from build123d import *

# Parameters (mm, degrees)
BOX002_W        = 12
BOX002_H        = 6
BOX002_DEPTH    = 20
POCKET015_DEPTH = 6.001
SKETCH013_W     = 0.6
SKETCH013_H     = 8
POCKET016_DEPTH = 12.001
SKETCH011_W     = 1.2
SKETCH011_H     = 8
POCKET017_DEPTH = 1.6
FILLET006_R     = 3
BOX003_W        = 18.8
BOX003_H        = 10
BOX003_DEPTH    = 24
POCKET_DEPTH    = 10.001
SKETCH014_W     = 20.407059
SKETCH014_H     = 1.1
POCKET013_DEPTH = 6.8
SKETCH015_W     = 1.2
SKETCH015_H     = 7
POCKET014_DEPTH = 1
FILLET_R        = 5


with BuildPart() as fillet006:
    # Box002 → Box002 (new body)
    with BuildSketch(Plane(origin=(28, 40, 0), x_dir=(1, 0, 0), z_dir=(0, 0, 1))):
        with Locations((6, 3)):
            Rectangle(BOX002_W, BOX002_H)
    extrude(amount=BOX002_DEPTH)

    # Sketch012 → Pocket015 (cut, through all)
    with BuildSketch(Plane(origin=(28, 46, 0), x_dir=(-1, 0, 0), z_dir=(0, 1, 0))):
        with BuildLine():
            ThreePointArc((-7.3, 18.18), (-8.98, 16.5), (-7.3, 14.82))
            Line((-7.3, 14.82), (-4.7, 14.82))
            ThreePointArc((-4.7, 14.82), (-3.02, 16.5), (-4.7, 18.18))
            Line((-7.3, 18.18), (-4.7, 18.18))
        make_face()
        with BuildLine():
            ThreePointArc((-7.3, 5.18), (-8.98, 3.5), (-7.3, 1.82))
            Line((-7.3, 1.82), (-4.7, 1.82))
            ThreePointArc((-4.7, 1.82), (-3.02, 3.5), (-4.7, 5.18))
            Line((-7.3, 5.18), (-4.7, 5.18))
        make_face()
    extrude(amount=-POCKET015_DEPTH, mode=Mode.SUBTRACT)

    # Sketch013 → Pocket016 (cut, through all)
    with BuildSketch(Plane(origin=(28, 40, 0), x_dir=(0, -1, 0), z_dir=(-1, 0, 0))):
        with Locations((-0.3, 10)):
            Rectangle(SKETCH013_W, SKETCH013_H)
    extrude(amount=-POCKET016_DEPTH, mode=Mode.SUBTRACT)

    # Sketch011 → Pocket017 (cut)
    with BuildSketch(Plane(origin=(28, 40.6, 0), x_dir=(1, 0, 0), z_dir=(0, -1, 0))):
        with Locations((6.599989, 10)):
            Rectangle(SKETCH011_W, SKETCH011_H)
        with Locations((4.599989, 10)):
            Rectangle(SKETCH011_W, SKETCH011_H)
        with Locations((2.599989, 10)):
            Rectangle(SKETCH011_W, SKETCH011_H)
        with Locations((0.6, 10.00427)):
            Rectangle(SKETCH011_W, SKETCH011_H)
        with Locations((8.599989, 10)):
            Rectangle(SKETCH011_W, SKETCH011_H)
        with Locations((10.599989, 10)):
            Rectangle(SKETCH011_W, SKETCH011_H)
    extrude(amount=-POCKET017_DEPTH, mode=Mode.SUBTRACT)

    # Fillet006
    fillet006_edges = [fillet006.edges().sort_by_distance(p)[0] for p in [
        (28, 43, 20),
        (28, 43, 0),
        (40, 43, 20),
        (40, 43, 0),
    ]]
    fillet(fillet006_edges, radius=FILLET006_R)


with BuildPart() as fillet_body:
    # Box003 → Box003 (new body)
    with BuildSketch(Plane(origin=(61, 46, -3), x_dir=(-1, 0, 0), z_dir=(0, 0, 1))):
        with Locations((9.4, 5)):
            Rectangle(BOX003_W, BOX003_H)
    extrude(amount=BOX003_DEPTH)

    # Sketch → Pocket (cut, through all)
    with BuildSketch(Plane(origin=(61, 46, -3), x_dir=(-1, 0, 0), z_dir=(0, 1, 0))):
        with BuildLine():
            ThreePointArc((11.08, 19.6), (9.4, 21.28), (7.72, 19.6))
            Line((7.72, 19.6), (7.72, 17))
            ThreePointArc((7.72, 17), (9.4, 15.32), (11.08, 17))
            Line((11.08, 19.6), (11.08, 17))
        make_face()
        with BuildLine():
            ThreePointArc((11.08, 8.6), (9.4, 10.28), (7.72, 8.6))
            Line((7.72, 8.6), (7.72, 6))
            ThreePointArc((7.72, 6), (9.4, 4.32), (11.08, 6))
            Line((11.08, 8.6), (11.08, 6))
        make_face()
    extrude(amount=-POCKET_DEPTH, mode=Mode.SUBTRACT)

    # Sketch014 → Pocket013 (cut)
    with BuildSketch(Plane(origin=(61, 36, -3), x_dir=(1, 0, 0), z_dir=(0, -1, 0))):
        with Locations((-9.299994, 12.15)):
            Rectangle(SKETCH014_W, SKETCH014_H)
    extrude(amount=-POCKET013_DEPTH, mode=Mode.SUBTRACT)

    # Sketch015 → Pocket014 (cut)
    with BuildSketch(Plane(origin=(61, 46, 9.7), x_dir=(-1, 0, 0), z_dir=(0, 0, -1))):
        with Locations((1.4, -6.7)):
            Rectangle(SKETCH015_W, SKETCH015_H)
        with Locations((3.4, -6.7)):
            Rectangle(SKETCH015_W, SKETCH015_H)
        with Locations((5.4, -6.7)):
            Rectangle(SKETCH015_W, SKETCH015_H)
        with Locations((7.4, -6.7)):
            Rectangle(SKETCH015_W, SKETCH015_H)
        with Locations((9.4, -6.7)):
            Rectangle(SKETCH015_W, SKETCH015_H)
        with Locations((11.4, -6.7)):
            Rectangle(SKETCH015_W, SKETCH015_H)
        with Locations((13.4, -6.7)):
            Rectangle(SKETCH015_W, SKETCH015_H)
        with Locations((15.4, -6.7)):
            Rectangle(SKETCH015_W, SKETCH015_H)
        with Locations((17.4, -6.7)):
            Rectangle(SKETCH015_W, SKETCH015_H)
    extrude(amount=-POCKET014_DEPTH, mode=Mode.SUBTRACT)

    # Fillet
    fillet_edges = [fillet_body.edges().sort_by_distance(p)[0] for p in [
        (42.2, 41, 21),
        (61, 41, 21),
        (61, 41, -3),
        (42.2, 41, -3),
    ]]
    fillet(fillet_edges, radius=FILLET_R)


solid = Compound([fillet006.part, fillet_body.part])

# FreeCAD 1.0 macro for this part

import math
import FreeCAD as App
import Part
import Sketcher
from FreeCAD import Vector


def edges_at(feature, points):
    """Names of the edges that pass closest to the given points."""
    edges = feature.Shape.Edges
    near = lambda p: min(range(len(edges)), key=lambda i: edges[i].distToShape(Part.Vertex(*p))[0])
    return sorted({f"Edge{near(p) + 1}" for p in points})


def add_polygon(sketch, points):
    """Adds a closed chain of lines whose ends are joined by coincident constraints."""
    first, n = sketch.GeometryCount, len(points)
    for a, b in zip(points, points[1:] + points[:1]):
        sketch.addGeometry(Part.LineSegment(App.Vector(*a, 0), App.Vector(*b, 0)), False)
    for i in range(n):
        sketch.addConstraint(Sketcher.Constraint("Coincident", first + i, 2, first + (i + 1) % n, 1))

doc = App.newDocument("Part")
params = doc.addObject("Spreadsheet::Sheet", "Params")
for row, (alias, value) in enumerate([
    ("sketch1_width", "12 mm"),
    ("sketch1_height", "6 mm"),
    ("pad1_length", "20 mm"),
    ("sketch2_radius", "1.68 mm"),
    ("sketch2_width", "2.6 mm"),
    ("sketch3_height", "8 mm"),
    ("sketch3_width", "0.6 mm"),
    ("sketch4_height", "8 mm"),
    ("sketch4_width", "1.2 mm"),
    ("pocket3_length", "1.6 mm"),
    ("fillet_radius", "3 mm"),
    ("sketch5_height", "10 mm"),
    ("sketch5_width", "18.8 mm"),
    ("pad2_length", "24 mm"),
    ("sketch6_radius", "1.68 mm"),
    ("sketch6_height", "2.6 mm"),
    ("sketch7_height", "1.1 mm"),
    ("pocket5_length", "6.8 mm"),
    ("sketch8_height", "7 mm"),
    ("sketch8_width", "1.2 mm"),
    ("pocket6_length", "1 mm"),
    ("fillet2_radius", "5 mm"),
], start=1):
    params.set(f"A{row}", alias)
    params.set(f"B{row}", "=" + value)
    params.setAlias(f"B{row}", alias)

body = doc.addObject("PartDesign::Body", "Body")

# Sketch on XY plane
sketch1 = doc.addObject("Sketcher::SketchObject", "Sketch")
body.addObject(sketch1)
sketch1.AttachmentSupport = (doc.XY_Plane, [""])
sketch1.MapMode = "FlatFace"
add_polygon(sketch1, [(28, 46), (28, 40), (40, 40), (40, 46)])  # lines 0-3
sketch1.addConstraint([
    Sketcher.Constraint("Vertical", 0),
    Sketcher.Constraint("Horizontal", 1),
    Sketcher.Constraint("Vertical", 2),
    Sketcher.Constraint("Horizontal", 3),
    Sketcher.Constraint("DistanceX", 1, 1, 1, 2, 12.0),
    Sketcher.Constraint("DistanceY", 0, 2, 0, 1, 6.0),
    Sketcher.Constraint("DistanceX", -1, 1, 0, 2, 28.0),
    Sketcher.Constraint("DistanceY", -1, 1, 0, 2, 40.0),
])
sketch1.setExpression("Constraints[8]", "Params.sketch1_width")
sketch1.setExpression("Constraints[9]", "Params.sketch1_height")
pad1 = doc.addObject("PartDesign::Pad", "Pad")
body.addObject(pad1)
pad1.Profile = sketch1
pad1.setExpression("Length", "Params.pad1_length")

# Sketch on XZ plane
sketch2 = doc.addObject("Sketcher::SketchObject", "Sketch001")
body.addObject(sketch2)
sketch2.AttachmentSupport = (doc.XZ_Plane, [""])
sketch2.MapMode = "FlatFace"
sketch2.AttachmentOffset = App.Placement(Vector(0, 0, -46), App.Rotation())
sketch2.addGeometry([
    Part.ArcOfCircle(Part.Circle(Vector(35.3, 16.5, 0), Vector(0, 0, 1), 1.7), math.radians(-90), math.radians(90)),  # 0
    Part.LineSegment(Vector(35.3, 14.8, 0), Vector(32.7, 14.8, 0)),  # 1
    Part.ArcOfCircle(Part.Circle(Vector(32.7, 16.5, 0), Vector(0, 0, 1), 1.7), math.radians(90), math.radians(270)),  # 2
    Part.LineSegment(Vector(32.7, 18.2, 0), Vector(35.3, 18.2, 0)),  # 3
    Part.ArcOfCircle(Part.Circle(Vector(35.3, 3.5, 0), Vector(0, 0, 1), 1.7), math.radians(-90), math.radians(90)),  # 4
    Part.LineSegment(Vector(35.3, 1.8, 0), Vector(32.7, 1.8, 0)),  # 5
    Part.ArcOfCircle(Part.Circle(Vector(32.7, 3.5, 0), Vector(0, 0, 1), 1.7), math.radians(90), math.radians(270)),  # 6
    Part.LineSegment(Vector(32.7, 5.2, 0), Vector(35.3, 5.2, 0)),  # 7
], False)
sketch2.addConstraint([
    Sketcher.Constraint("Tangent", 0, 1, 1, 1),
    Sketcher.Constraint("Tangent", 1, 2, 2, 2),
    Sketcher.Constraint("Tangent", 2, 1, 3, 1),
    Sketcher.Constraint("Tangent", 3, 2, 0, 2),
    Sketcher.Constraint("Tangent", 4, 1, 5, 1),
    Sketcher.Constraint("Tangent", 5, 2, 6, 2),
    Sketcher.Constraint("Tangent", 6, 1, 7, 1),
    Sketcher.Constraint("Tangent", 7, 2, 4, 2),
    Sketcher.Constraint("Horizontal", 1),
    Sketcher.Constraint("Horizontal", 3),
    Sketcher.Constraint("Horizontal", 5),
    Sketcher.Constraint("Horizontal", 7),
    Sketcher.Constraint("Equal", 2, 4),
    Sketcher.Constraint("Vertical", 0, 3, 4, 3),
    Sketcher.Constraint("Vertical", 2, 3, 6, 3),
    Sketcher.Constraint("Radius", 0, 1.68),
    Sketcher.Constraint("DistanceX", 1, 2, 1, 1, 2.6),
    Sketcher.Constraint("DistanceY", 4, 3, 0, 3, 13.0),
    Sketcher.Constraint("DistanceX", -1, 1, 0, 3, 35.3),
    Sketcher.Constraint("DistanceY", -1, 1, 0, 3, 16.5),
])
sketch2.setExpression("Constraints[15]", "Params.sketch2_radius")
sketch2.setExpression("Constraints[16]", "Params.sketch2_width")
pocket1 = doc.addObject("PartDesign::Pocket", "Pocket")
body.addObject(pocket1)
pocket1.Profile = sketch2
pocket1.Type = "ThroughAll"
pocket1.Reversed = True

# Sketch on YZ plane
sketch3 = doc.addObject("Sketcher::SketchObject", "Sketch002")
body.addObject(sketch3)
sketch3.AttachmentSupport = (doc.YZ_Plane, [""])
sketch3.MapMode = "FlatFace"
sketch3.AttachmentOffset = App.Placement(Vector(0, 0, 28), App.Rotation())
add_polygon(sketch3, [(40.6, 14), (40.6, 6), (40, 6), (40, 14)])  # lines 0-3
sketch3.addConstraint([
    Sketcher.Constraint("Vertical", 0),
    Sketcher.Constraint("Horizontal", 1),
    Sketcher.Constraint("Vertical", 2),
    Sketcher.Constraint("Horizontal", 3),
    Sketcher.Constraint("DistanceY", 0, 2, 0, 1, 8.0),
    Sketcher.Constraint("DistanceX", 1, 2, 1, 1, 0.6),
    Sketcher.Constraint("DistanceY", -1, 1, 0, 2, 6.0),
    Sketcher.Constraint("DistanceX", -1, 1, 1, 2, 40.0),
])
sketch3.setExpression("Constraints[8]", "Params.sketch3_height")
sketch3.setExpression("Constraints[9]", "Params.sketch3_width")
pocket2 = doc.addObject("PartDesign::Pocket", "Pocket001")
body.addObject(pocket2)
pocket2.Profile = sketch3
pocket2.Type = "ThroughAll"
pocket2.Reversed = True

# Sketch on XZ plane
sketch4 = doc.addObject("Sketcher::SketchObject", "Sketch003")
body.addObject(sketch4)
sketch4.AttachmentSupport = (doc.XZ_Plane, [""])
sketch4.MapMode = "FlatFace"
sketch4.AttachmentOffset = App.Placement(Vector(0, 0, -40.6), App.Rotation())
add_polygon(sketch4, [(34, 14), (34, 6), (35.2, 6), (35.2, 14)])  # lines 0-3
add_polygon(sketch4, [(32, 14), (32, 6), (33.2, 6), (33.2, 14)])  # lines 4-7
add_polygon(sketch4, [(30, 14), (30, 6), (31.2, 6), (31.2, 14)])  # lines 8-11
add_polygon(sketch4, [(28, 14), (28, 6), (29.2, 6), (29.2, 14)])  # lines 12-15
add_polygon(sketch4, [(36, 14), (36, 6), (37.2, 6), (37.2, 14)])  # lines 16-19
add_polygon(sketch4, [(38, 14), (38, 6), (39.2, 6), (39.2, 14)])  # lines 20-23
sketch4.addConstraint([
    Sketcher.Constraint("Vertical", 0),
    Sketcher.Constraint("Horizontal", 1),
    Sketcher.Constraint("Vertical", 2),
    Sketcher.Constraint("Horizontal", 3),
    Sketcher.Constraint("Vertical", 4),
    Sketcher.Constraint("Horizontal", 5),
    Sketcher.Constraint("Vertical", 6),
    Sketcher.Constraint("Horizontal", 7),
    Sketcher.Constraint("Vertical", 8),
    Sketcher.Constraint("Horizontal", 9),
    Sketcher.Constraint("Vertical", 10),
    Sketcher.Constraint("Horizontal", 11),
    Sketcher.Constraint("Vertical", 12),
    Sketcher.Constraint("Horizontal", 13),
    Sketcher.Constraint("Vertical", 14),
    Sketcher.Constraint("Horizontal", 15),
    Sketcher.Constraint("Vertical", 16),
    Sketcher.Constraint("Horizontal", 17),
    Sketcher.Constraint("Vertical", 18),
    Sketcher.Constraint("Horizontal", 19),
    Sketcher.Constraint("Vertical", 20),
    Sketcher.Constraint("Horizontal", 21),
    Sketcher.Constraint("Vertical", 22),
    Sketcher.Constraint("Horizontal", 23),
    Sketcher.Constraint("Horizontal", 1, 2, 4, 2),
    Sketcher.Constraint("Horizontal", 3, 2, 6, 2),
    Sketcher.Constraint("Horizontal", 5, 2, 8, 2),
    Sketcher.Constraint("Horizontal", 7, 2, 10, 2),
    Sketcher.Constraint("Horizontal", 9, 2, 16, 2),
    Sketcher.Constraint("Horizontal", 11, 2, 18, 2),
    Sketcher.Constraint("Horizontal", 17, 2, 20, 2),
    Sketcher.Constraint("Horizontal", 19, 2, 22, 2),
    Sketcher.Constraint("Equal", 3, 5),
    Sketcher.Constraint("Equal", 7, 9),
    Sketcher.Constraint("Equal", 11, 13),
    Sketcher.Constraint("Equal", 15, 17),
    Sketcher.Constraint("Equal", 19, 21),
    Sketcher.Constraint("Equal", 10, 12),
    Sketcher.Constraint("DistanceY", 0, 2, 0, 1, 8.0),
    Sketcher.Constraint("DistanceX", 1, 1, 1, 2, 1.2),
    Sketcher.Constraint("DistanceY", -1, 1, 0, 2, 6.0),
    Sketcher.Constraint("DistanceX", -1, 1, 12, 2, 28.0),
    Sketcher.Constraint("DistanceX", 4, 2, 0, 2, 2.0),
    Sketcher.Constraint("DistanceX", 8, 2, 4, 2, 2.0),
    Sketcher.Constraint("DistanceX", 0, 2, 16, 2, 2.0),
    Sketcher.Constraint("DistanceX", 16, 2, 20, 2, 2.0),
    Sketcher.Constraint("DistanceX", -1, 1, 0, 2, 33.999989),
    Sketcher.Constraint("DistanceY", -1, 1, 12, 2, 6.00427),
])
sketch4.setExpression("Constraints[62]", "Params.sketch4_height")
sketch4.setExpression("Constraints[63]", "Params.sketch4_width")
pocket3 = doc.addObject("PartDesign::Pocket", "Pocket002")
body.addObject(pocket3)
pocket3.Profile = sketch4
pocket3.setExpression("Length", "Params.pocket3_length")
doc.recompute()

fillet = doc.addObject("PartDesign::Fillet", "Fillet")
body.addObject(fillet)
fillet.Base = (pocket3, edges_at(pocket3, [
    (28, 43, 20),
    (28, 43, 0),
    (40, 43, 20),
    (40, 43, 0),
]))
fillet.setExpression("Radius", "Params.fillet_radius")
body2 = doc.addObject("PartDesign::Body", "Body001")

# Sketch on XY plane
sketch5 = doc.addObject("Sketcher::SketchObject", "Sketch004")
body2.addObject(sketch5)
sketch5.AttachmentSupport = (doc.getObject("XY_Plane001"), [""])
sketch5.MapMode = "FlatFace"
sketch5.AttachmentOffset = App.Placement(Vector(0, 0, -3), App.Rotation())
add_polygon(sketch5, [(61, 36), (61, 46), (42, 46), (42, 36)])  # lines 0-3
sketch5.addConstraint([
    Sketcher.Constraint("Vertical", 0),
    Sketcher.Constraint("Horizontal", 1),
    Sketcher.Constraint("Vertical", 2),
    Sketcher.Constraint("Horizontal", 3),
    Sketcher.Constraint("DistanceY", 0, 1, 0, 2, 10.0),
    Sketcher.Constraint("DistanceX", 1, 2, 1, 1, 18.8),
    Sketcher.Constraint("DistanceX", -1, 1, 0, 2, 61.0),
    Sketcher.Constraint("DistanceY", -1, 1, 0, 2, 46.0),
])
sketch5.setExpression("Constraints[8]", "Params.sketch5_height")
sketch5.setExpression("Constraints[9]", "Params.sketch5_width")
pad2 = doc.addObject("PartDesign::Pad", "Pad001")
body2.addObject(pad2)
pad2.Profile = sketch5
pad2.setExpression("Length", "Params.pad2_length")

# Sketch on XZ plane
sketch6 = doc.addObject("Sketcher::SketchObject", "Sketch005")
body2.addObject(sketch6)
sketch6.AttachmentSupport = (doc.getObject("XZ_Plane001"), [""])
sketch6.MapMode = "FlatFace"
sketch6.AttachmentOffset = App.Placement(Vector(0, 0, -46), App.Rotation())
sketch6.addGeometry([
    Part.ArcOfCircle(Part.Circle(Vector(51.6, 16.6, 0), Vector(0, 0, 1), 1.7), math.radians(0), math.radians(180)),  # 0
    Part.LineSegment(Vector(53.3, 16.6, 0), Vector(53.3, 14, 0)),  # 1
    Part.ArcOfCircle(Part.Circle(Vector(51.6, 14, 0), Vector(0, 0, 1), 1.7), math.radians(180), math.radians(360)),  # 2
    Part.LineSegment(Vector(49.9, 14, 0), Vector(49.9, 16.6, 0)),  # 3
    Part.ArcOfCircle(Part.Circle(Vector(51.6, 5.6, 0), Vector(0, 0, 1), 1.7), math.radians(0), math.radians(180)),  # 4
    Part.LineSegment(Vector(53.3, 5.6, 0), Vector(53.3, 3, 0)),  # 5
    Part.ArcOfCircle(Part.Circle(Vector(51.6, 3, 0), Vector(0, 0, 1), 1.7), math.radians(180), math.radians(360)),  # 6
    Part.LineSegment(Vector(49.9, 3, 0), Vector(49.9, 5.6, 0)),  # 7
], False)
sketch6.addConstraint([
    Sketcher.Constraint("Tangent", 0, 1, 1, 1),
    Sketcher.Constraint("Tangent", 1, 2, 2, 2),
    Sketcher.Constraint("Tangent", 2, 1, 3, 1),
    Sketcher.Constraint("Tangent", 3, 2, 0, 2),
    Sketcher.Constraint("Tangent", 4, 1, 5, 1),
    Sketcher.Constraint("Tangent", 5, 2, 6, 2),
    Sketcher.Constraint("Tangent", 6, 1, 7, 1),
    Sketcher.Constraint("Tangent", 7, 2, 4, 2),
    Sketcher.Constraint("Vertical", 1),
    Sketcher.Constraint("Vertical", 3),
    Sketcher.Constraint("Vertical", 5),
    Sketcher.Constraint("Vertical", 7),
    Sketcher.Constraint("Equal", 2, 4),
    Sketcher.Constraint("Vertical", 2, 3, 4, 3),
    Sketcher.Constraint("Equal", 3, 5),
    Sketcher.Constraint("Radius", 0, 1.68),
    Sketcher.Constraint("DistanceY", 1, 2, 1, 1, 2.6),
    Sketcher.Constraint("DistanceY", -1, 1, 2, 3, 14.0),
    Sketcher.Constraint("DistanceY", -1, 1, 6, 3, 3.0),
    Sketcher.Constraint("DistanceX", -1, 1, 0, 3, 51.6),
])
sketch6.setExpression("Constraints[15]", "Params.sketch6_radius")
sketch6.setExpression("Constraints[16]", "Params.sketch6_height")
pocket4 = doc.addObject("PartDesign::Pocket", "Pocket003")
body2.addObject(pocket4)
pocket4.Profile = sketch6
pocket4.Type = "ThroughAll"
pocket4.Reversed = True

# Sketch on XZ plane
sketch7 = doc.addObject("Sketcher::SketchObject", "Sketch006")
body2.addObject(sketch7)
sketch7.AttachmentSupport = (doc.getObject("XZ_Plane001"), [""])
sketch7.MapMode = "FlatFace"
sketch7.AttachmentOffset = App.Placement(Vector(0, 0, -36), App.Rotation())
add_polygon(sketch7, [(41.5, 9.7), (41.5, 8.6), (61.9, 8.6), (61.9, 9.7)])  # lines 0-3
sketch7.addConstraint([
    Sketcher.Constraint("Vertical", 0),
    Sketcher.Constraint("Horizontal", 1),
    Sketcher.Constraint("Vertical", 2),
    Sketcher.Constraint("Horizontal", 3),
    Sketcher.Constraint("DistanceY", 0, 2, 0, 1, 1.1),
    Sketcher.Constraint("DistanceY", -1, 1, 0, 2, 8.6),
    Sketcher.Constraint("DistanceX", 1, 1, 1, 2, 20.407059),
    Sketcher.Constraint("DistanceX", -1, 1, 0, 2, 41.496476),
])
sketch7.setExpression("Constraints[8]", "Params.sketch7_height")
pocket5 = doc.addObject("PartDesign::Pocket", "Pocket004")
body2.addObject(pocket5)
pocket5.Profile = sketch7
pocket5.setExpression("Length", "Params.pocket5_length")

# Sketch on XY plane
sketch8 = doc.addObject("Sketcher::SketchObject", "Sketch007")
body2.addObject(sketch8)
sketch8.AttachmentSupport = (doc.getObject("XY_Plane001"), [""])
sketch8.MapMode = "FlatFace"
sketch8.AttachmentOffset = App.Placement(Vector(0, 0, 9.7), App.Rotation())
add_polygon(sketch8, [(60.2, 42.8), (60.2, 35.8), (59, 35.8), (59, 42.8)])  # lines 0-3
add_polygon(sketch8, [(58.2, 42.8), (58.2, 35.8), (57, 35.8), (57, 42.8)])  # lines 4-7
add_polygon(sketch8, [(56.2, 42.8), (56.2, 35.8), (55, 35.8), (55, 42.8)])  # lines 8-11
add_polygon(sketch8, [(54.2, 42.8), (54.2, 35.8), (53, 35.8), (53, 42.8)])  # lines 12-15
add_polygon(sketch8, [(52.2, 42.8), (52.2, 35.8), (51, 35.8), (51, 42.8)])  # lines 16-19
add_polygon(sketch8, [(50.2, 42.8), (50.2, 35.8), (49, 35.8), (49, 42.8)])  # lines 20-23
add_polygon(sketch8, [(48.2, 42.8), (48.2, 35.8), (47, 35.8), (47, 42.8)])  # lines 24-27
add_polygon(sketch8, [(46.2, 42.8), (46.2, 35.8), (45, 35.8), (45, 42.8)])  # lines 28-31
add_polygon(sketch8, [(44.2, 42.8), (44.2, 35.8), (43, 35.8), (43, 42.8)])  # lines 32-35
sketch8.addConstraint([
    Sketcher.Constraint("Vertical", 0),
    Sketcher.Constraint("Horizontal", 1),
    Sketcher.Constraint("Vertical", 2),
    Sketcher.Constraint("Horizontal", 3),
    Sketcher.Constraint("Vertical", 4),
    Sketcher.Constraint("Horizontal", 5),
    Sketcher.Constraint("Vertical", 6),
    Sketcher.Constraint("Horizontal", 7),
    Sketcher.Constraint("Vertical", 8),
    Sketcher.Constraint("Horizontal", 9),
    Sketcher.Constraint("Vertical", 10),
    Sketcher.Constraint("Horizontal", 11),
    Sketcher.Constraint("Vertical", 12),
    Sketcher.Constraint("Horizontal", 13),
    Sketcher.Constraint("Vertical", 14),
    Sketcher.Constraint("Horizontal", 15),
    Sketcher.Constraint("Vertical", 16),
    Sketcher.Constraint("Horizontal", 17),
    Sketcher.Constraint("Vertical", 18),
    Sketcher.Constraint("Horizontal", 19),
    Sketcher.Constraint("Vertical", 20),
    Sketcher.Constraint("Horizontal", 21),
    Sketcher.Constraint("Vertical", 22),
    Sketcher.Constraint("Horizontal", 23),
    Sketcher.Constraint("Vertical", 24),
    Sketcher.Constraint("Horizontal", 25),
    Sketcher.Constraint("Vertical", 26),
    Sketcher.Constraint("Horizontal", 27),
    Sketcher.Constraint("Vertical", 28),
    Sketcher.Constraint("Horizontal", 29),
    Sketcher.Constraint("Vertical", 30),
    Sketcher.Constraint("Horizontal", 31),
    Sketcher.Constraint("Vertical", 32),
    Sketcher.Constraint("Horizontal", 33),
    Sketcher.Constraint("Vertical", 34),
    Sketcher.Constraint("Horizontal", 35),
    Sketcher.Constraint("Horizontal", 1, 2, 4, 2),
    Sketcher.Constraint("Horizontal", 3, 2, 6, 2),
    Sketcher.Constraint("Horizontal", 5, 2, 8, 2),
    Sketcher.Constraint("Horizontal", 7, 2, 10, 2),
    Sketcher.Constraint("Horizontal", 9, 2, 12, 2),
    Sketcher.Constraint("Horizontal", 11, 2, 14, 2),
    Sketcher.Constraint("Horizontal", 13, 2, 16, 2),
    Sketcher.Constraint("Horizontal", 15, 2, 18, 2),
    Sketcher.Constraint("Horizontal", 17, 2, 20, 2),
    Sketcher.Constraint("Horizontal", 19, 2, 22, 2),
    Sketcher.Constraint("Horizontal", 21, 2, 24, 2),
    Sketcher.Constraint("Horizontal", 23, 2, 26, 2),
    Sketcher.Constraint("Horizontal", 25, 2, 28, 2),
    Sketcher.Constraint("Horizontal", 27, 2, 30, 2),
    Sketcher.Constraint("Horizontal", 29, 2, 32, 2),
    Sketcher.Constraint("Horizontal", 31, 2, 34, 2),
    Sketcher.Constraint("Equal", 3, 5),
    Sketcher.Constraint("Equal", 7, 9),
    Sketcher.Constraint("Equal", 11, 13),
    Sketcher.Constraint("Equal", 15, 17),
    Sketcher.Constraint("Equal", 19, 21),
    Sketcher.Constraint("Equal", 23, 25),
    Sketcher.Constraint("Equal", 27, 29),
    Sketcher.Constraint("Equal", 31, 33),
    Sketcher.Constraint("DistanceY", 0, 2, 0, 1, 7.0),
    Sketcher.Constraint("DistanceX", 1, 2, 1, 1, 1.2),
    Sketcher.Constraint("DistanceX", -1, 1, 1, 2, 59.0),
    Sketcher.Constraint("DistanceX", -1, 1, 5, 2, 57.0),
    Sketcher.Constraint("DistanceX", -1, 1, 9, 2, 55.0),
    Sketcher.Constraint("DistanceX", -1, 1, 13, 2, 53.0),
    Sketcher.Constraint("DistanceX", -1, 1, 17, 2, 51.0),
    Sketcher.Constraint("DistanceX", -1, 1, 21, 2, 49.0),
    Sketcher.Constraint("DistanceX", -1, 1, 25, 2, 47.0),
    Sketcher.Constraint("DistanceX", -1, 1, 29, 2, 45.0),
    Sketcher.Constraint("DistanceX", -1, 1, 33, 2, 43.0),
    Sketcher.Constraint("DistanceY", -1, 1, 0, 2, 35.8),
])
sketch8.setExpression("Constraints[96]", "Params.sketch8_height")
sketch8.setExpression("Constraints[97]", "Params.sketch8_width")
pocket6 = doc.addObject("PartDesign::Pocket", "Pocket005")
body2.addObject(pocket6)
pocket6.Profile = sketch8
pocket6.setExpression("Length", "Params.pocket6_length")
pocket6.Reversed = True
doc.recompute()

fillet2 = doc.addObject("PartDesign::Fillet", "Fillet001")
body2.addObject(fillet2)
fillet2.Base = (pocket6, edges_at(pocket6, [
    (42.2, 41, 21),
    (61, 41, 21),
    (61, 41, -3),
    (42.2, 41, -3),
]))
fillet2.setExpression("Radius", "Params.fillet2_radius")

doc.recompute()
